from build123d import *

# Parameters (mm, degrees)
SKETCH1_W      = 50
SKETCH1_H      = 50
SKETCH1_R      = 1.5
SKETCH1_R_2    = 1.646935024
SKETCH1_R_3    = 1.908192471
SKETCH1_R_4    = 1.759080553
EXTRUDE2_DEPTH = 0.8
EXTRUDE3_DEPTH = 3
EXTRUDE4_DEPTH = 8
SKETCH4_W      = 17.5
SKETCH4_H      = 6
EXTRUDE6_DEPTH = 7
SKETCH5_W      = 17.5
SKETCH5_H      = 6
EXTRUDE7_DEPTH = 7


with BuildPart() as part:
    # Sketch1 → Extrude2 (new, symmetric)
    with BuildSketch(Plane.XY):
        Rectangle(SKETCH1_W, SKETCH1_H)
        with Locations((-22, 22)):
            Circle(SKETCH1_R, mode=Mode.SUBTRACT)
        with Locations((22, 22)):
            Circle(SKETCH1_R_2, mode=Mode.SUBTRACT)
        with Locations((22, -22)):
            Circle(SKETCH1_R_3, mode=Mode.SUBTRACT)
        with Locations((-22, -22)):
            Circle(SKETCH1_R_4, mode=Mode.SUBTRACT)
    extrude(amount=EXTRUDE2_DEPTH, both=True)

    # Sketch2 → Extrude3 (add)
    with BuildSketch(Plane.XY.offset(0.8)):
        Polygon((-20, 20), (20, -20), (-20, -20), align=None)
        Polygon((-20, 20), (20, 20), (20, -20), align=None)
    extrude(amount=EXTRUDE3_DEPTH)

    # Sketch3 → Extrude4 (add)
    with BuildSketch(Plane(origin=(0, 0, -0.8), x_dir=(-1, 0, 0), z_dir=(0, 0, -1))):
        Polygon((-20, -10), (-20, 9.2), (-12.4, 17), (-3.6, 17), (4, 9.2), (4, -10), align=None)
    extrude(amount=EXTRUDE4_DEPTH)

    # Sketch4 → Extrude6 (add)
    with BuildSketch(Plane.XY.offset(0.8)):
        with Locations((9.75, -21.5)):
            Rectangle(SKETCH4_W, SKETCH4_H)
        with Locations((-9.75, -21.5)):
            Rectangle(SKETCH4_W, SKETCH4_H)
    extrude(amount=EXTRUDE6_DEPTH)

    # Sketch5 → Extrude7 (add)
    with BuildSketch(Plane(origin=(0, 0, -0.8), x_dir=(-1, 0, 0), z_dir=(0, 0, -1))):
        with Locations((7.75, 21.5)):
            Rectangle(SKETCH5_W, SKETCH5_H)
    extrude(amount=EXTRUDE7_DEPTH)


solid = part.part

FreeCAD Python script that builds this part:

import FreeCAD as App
import Part
import Sketcher
from FreeCAD import Vector

doc = App.newDocument("Part")
body = doc.addObject("PartDesign::Body", "Body")

# Sketch on XY plane
sketch1 = body.newObject("Sketcher::SketchObject", "Sketch")
sketch1.AttachmentSupport = (doc.getObject("XY_Plane"), [""])
sketch1.MapMode = "FlatFace"
sketch1.addGeometry([
    Part.LineSegment(Vector(-25, 25, 0), Vector(-25, -25, 0)),  # 0
    Part.LineSegment(Vector(-25, -25, 0), Vector(25, -25, 0)),  # 1
    Part.LineSegment(Vector(25, -25, 0), Vector(25, 25, 0)),  # 2
    Part.LineSegment(Vector(25, 25, 0), Vector(-25, 25, 0)),  # 3
    Part.Circle(Vector(-22, -22, 0), Vector(0, 0, 1), 1.8),  # 4
    Part.Circle(Vector(22, -22, 0), Vector(0, 0, 1), 1.9),  # 5
    Part.Circle(Vector(-22, 22, 0), Vector(0, 0, 1), 1.5),  # 6
    Part.Circle(Vector(22, 22, 0), Vector(0, 0, 1), 1.6),  # 7
], False)
sketch1.addConstraint([
    Sketcher.Constraint("Coincident", 0, 2, 1, 1),
    Sketcher.Constraint("Coincident", 1, 2, 2, 1),
    Sketcher.Constraint("Coincident", 2, 2, 3, 1),
    Sketcher.Constraint("Coincident", 3, 2, 0, 1),
    Sketcher.Constraint("Vertical", 0),
    Sketcher.Constraint("Horizontal", 1),
    Sketcher.Constraint("Vertical", 2),
    Sketcher.Constraint("Horizontal", 3),
    Sketcher.Constraint("Symmetric", 5, 3, 6, 3, -1, 1),
    Sketcher.Constraint("Symmetric", 4, 3, 7, 3, -1, 1),
    Sketcher.Constraint("Symmetric", 0, 2, 2, 2, -1, 1),
    Sketcher.Constraint("Symmetric", 4, 3, 5, 3, -2),
    Sketcher.Constraint("Equal", 3, 0),
    Sketcher.Constraint("Diameter", 6, 3.0),
    Sketcher.Constraint("DistanceX", 1, 1, 1, 2, 50.0),
    Sketcher.Constraint("DistanceX", 4, 3, -1, 1, 22.0),
    Sketcher.Constraint("DistanceY", 4, 3, -1, 1, 22.0),
    Sketcher.Constraint("Diameter", 4, 3.518161),
    Sketcher.Constraint("Diameter", 7, 3.29387),
    Sketcher.Constraint("Diameter", 5, 3.816385),
])
pad1 = body.newObject("PartDesign::Pad", "Pad")
pad1.Profile = sketch1
pad1.Length = 1.6
pad1.Midplane = True

# Sketch on XY plane
sketch2 = body.newObject("Sketcher::SketchObject", "Sketch001")
sketch2.AttachmentSupport = (doc.getObject("XY_Plane"), [""])
sketch2.MapMode = "FlatFace"
sketch2.AttachmentOffset = App.Placement(Vector(0, 0, 0.8), App.Rotation())
sketch2.addGeometry([
    Part.LineSegment(Vector(-20, -20, 0), Vector(20, -20, 0)),
    Part.LineSegment(Vector(20, -20, 0), Vector(20, 20, 0)),
    Part.LineSegment(Vector(20, 20, 0), Vector(-20, 20, 0)),
    Part.LineSegment(Vector(-20, 20, 0), Vector(-20, -20, 0)),
], False)
sketch2.addConstraint([
    Sketcher.Constraint("Coincident", 0, 2, 1, 1),
    Sketcher.Constraint("Coincident", 1, 2, 2, 1),
    Sketcher.Constraint("Coincident", 2, 2, 3, 1),
    Sketcher.Constraint("Coincident", 3, 2, 0, 1),
    Sketcher.Constraint("Horizontal", 0),
    Sketcher.Constraint("Vertical", 1),
    Sketcher.Constraint("Horizontal", 2),
    Sketcher.Constraint("Vertical", 3),
    Sketcher.Constraint("Symmetric", 0, 2, 2, 2, -1, 1),
    Sketcher.Constraint("Equal", 2, 1),
    Sketcher.Constraint("DistanceX", 0, 1, 0, 2, 40.0),
])
pad2 = body.newObject("PartDesign::Pad", "Pad001")
pad2.Profile = sketch2
pad2.Length = 3

# Sketch on XY plane
sketch3 = body.newObject("Sketcher::SketchObject", "Sketch002")
sketch3.AttachmentSupport = (doc.getObject("XY_Plane"), [""])
sketch3.MapMode = "FlatFace"
sketch3.AttachmentOffset = App.Placement(Vector(0, 0, -0.8), App.Rotation())
sketch3.addGeometry([
    Part.LineSegment(Vector(20, 9, 0), Vector(20, -10, 0)),  # 0
    Part.LineSegment(Vector(20, -10, 0), Vector(-4, -10, 0)),  # 1
    Part.LineSegment(Vector(-4, -10, 0), Vector(-4, 9, 0)),  # 2
    Part.LineSegment(Vector(-4, 9, 0), Vector(4, 17, 0)),  # 3
    Part.LineSegment(Vector(4, 17, 0), Vector(12, 17, 0)),  # 4
    Part.LineSegment(Vector(12, 17, 0), Vector(20, 9, 0)),  # 5
], False)
sketch3.addConstraint([
    Sketcher.Constraint("Coincident", 0, 2, 1, 1),
    Sketcher.Constraint("Coincident", 1, 2, 2, 1),
    Sketcher.Constraint("Coincident", 2, 2, 3, 1),
    Sketcher.Constraint("Coincident", 3, 2, 4, 1),
    Sketcher.Constraint("Coincident", 4, 2, 5, 1),
    Sketcher.Constraint("Coincident", 5, 2, 0, 1),
    Sketcher.Constraint("Vertical", 0),
    Sketcher.Constraint("Horizontal", 1),
    Sketcher.Constraint("Vertical", 2),
    Sketcher.Constraint("Horizontal", 4),
    Sketcher.Constraint("Horizontal", 2, 2, 5, 2),
    Sketcher.Constraint("Equal", 3, 5),
    Sketcher.Constraint("DistanceX", 1, 2, 1, 1, 24.0),
    Sketcher.Constraint("DistanceX", 4, 1, 4, 2, 8.8),
    Sketcher.Constraint("DistanceY", 0, 2, 0, 1, 19.2),
    Sketcher.Constraint("DistanceX", -1, 1, 0, 2, 20.0),
    Sketcher.Constraint("DistanceY", 0, 2, -1, 1, 10.0),
    Sketcher.Constraint("DistanceY", -1, 1, 3, 2, 17.0),
])
pad3 = body.newObject("PartDesign::Pad", "Pad002")
pad3.Profile = sketch3
pad3.Length = 8
pad3.Reversed = True

# Sketch on XY plane
sketch4 = body.newObject("Sketcher::SketchObject", "Sketch003")
sketch4.AttachmentSupport = (doc.getObject("XY_Plane"), [""])
sketch4.MapMode = "FlatFace"
sketch4.AttachmentOffset = App.Placement(Vector(0, 0, 0.8), App.Rotation())
sketch4.addGeometry([
    Part.LineSegment(Vector(1, -18, 0), Vector(1, -24, 0)),  # 0
    Part.LineSegment(Vector(1, -24, 0), Vector(18, -24, 0)),  # 1
    Part.LineSegment(Vector(18, -24, 0), Vector(18, -18, 0)),  # 2
    Part.LineSegment(Vector(18, -18, 0), Vector(1, -18, 0)),  # 3
    Part.LineSegment(Vector(-18, -18, 0), Vector(-18, -24, 0)),  # 4
    Part.LineSegment(Vector(-18, -24, 0), Vector(-1, -24, 0)),  # 5
    Part.LineSegment(Vector(-1, -24, 0), Vector(-1, -18, 0)),  # 6
    Part.LineSegment(Vector(-1, -18, 0), Vector(-18, -18, 0)),  # 7
], False)
sketch4.addConstraint([
    Sketcher.Constraint("Coincident", 0, 2, 1, 1),
    Sketcher.Constraint("Coincident", 1, 2, 2, 1),
    Sketcher.Constraint("Coincident", 2, 2, 3, 1),
    Sketcher.Constraint("Coincident", 3, 2, 0, 1),
    Sketcher.Constraint("Coincident", 4, 2, 5, 1),
    Sketcher.Constraint("Coincident", 5, 2, 6, 1),
    Sketcher.Constraint("Coincident", 6, 2, 7, 1),
    Sketcher.Constraint("Coincident", 7, 2, 4, 1),
    Sketcher.Constraint("Vertical", 0),
    Sketcher.Constraint("Horizontal", 1),
    Sketcher.Constraint("Vertical", 2),
    Sketcher.Constraint("Horizontal", 3),
    Sketcher.Constraint("Vertical", 4),
    Sketcher.Constraint("Horizontal", 5),
    Sketcher.Constraint("Vertical", 6),
    Sketcher.Constraint("Horizontal", 7),
    Sketcher.Constraint("Symmetric", 1, 2, 4, 2, -2),
    Sketcher.Constraint("Symmetric", 3, 2, 6, 2, -2),
    Sketcher.Constraint("DistanceY", 0, 2, 0, 1, 6.0),
    Sketcher.Constraint("DistanceX", 1, 1, 1, 2, 17.5),
    Sketcher.Constraint("DistanceX", -1, 1, 0, 2, 1.0),
    Sketcher.Constraint("DistanceY", 0, 2, -1, 1, 24.5),
])
pad4 = body.newObject("PartDesign::Pad", "Pad003")
pad4.Profile = sketch4
pad4.Length = 7

# Sketch on XY plane
sketch5 = body.newObject("Sketcher::SketchObject", "Sketch004")
sketch5.AttachmentSupport = (doc.getObject("XY_Plane"), [""])
sketch5.MapMode = "FlatFace"
sketch5.AttachmentOffset = App.Placement(Vector(0, 0, -0.8), App.Rotation())
sketch5.addGeometry([
    Part.LineSegment(Vector(1, 24, 0), Vector(1, 18, 0)),
    Part.LineSegment(Vector(1, 18, 0), Vector(-16, 18, 0)),
    Part.LineSegment(Vector(-16, 18, 0), Vector(-16, 24, 0)),
    Part.LineSegment(Vector(-16, 24, 0), Vector(1, 24, 0)),
], False)
sketch5.addConstraint([
    Sketcher.Constraint("Coincident", 0, 2, 1, 1),
    Sketcher.Constraint("Coincident", 1, 2, 2, 1),
    Sketcher.Constraint("Coincident", 2, 2, 3, 1),
    Sketcher.Constraint("Coincident", 3, 2, 0, 1),
    Sketcher.Constraint("Vertical", 0),
    Sketcher.Constraint("Horizontal", 1),
    Sketcher.Constraint("Vertical", 2),
    Sketcher.Constraint("Horizontal", 3),
    Sketcher.Constraint("DistanceY", 0, 2, 0, 1, 6.0),
    Sketcher.Constraint("DistanceX", 1, 2, 1, 1, 17.5),
    Sketcher.Constraint("DistanceX", -1, 1, 0, 2, 1.0),
    Sketcher.Constraint("DistanceY", -1, 1, 0, 2, 18.5),
])
pad5 = body.newObject("PartDesign::Pad", "Pad004")
pad5.Profile = sketch5
pad5.Length = 7
pad5.Reversed = True

doc.recompute()
